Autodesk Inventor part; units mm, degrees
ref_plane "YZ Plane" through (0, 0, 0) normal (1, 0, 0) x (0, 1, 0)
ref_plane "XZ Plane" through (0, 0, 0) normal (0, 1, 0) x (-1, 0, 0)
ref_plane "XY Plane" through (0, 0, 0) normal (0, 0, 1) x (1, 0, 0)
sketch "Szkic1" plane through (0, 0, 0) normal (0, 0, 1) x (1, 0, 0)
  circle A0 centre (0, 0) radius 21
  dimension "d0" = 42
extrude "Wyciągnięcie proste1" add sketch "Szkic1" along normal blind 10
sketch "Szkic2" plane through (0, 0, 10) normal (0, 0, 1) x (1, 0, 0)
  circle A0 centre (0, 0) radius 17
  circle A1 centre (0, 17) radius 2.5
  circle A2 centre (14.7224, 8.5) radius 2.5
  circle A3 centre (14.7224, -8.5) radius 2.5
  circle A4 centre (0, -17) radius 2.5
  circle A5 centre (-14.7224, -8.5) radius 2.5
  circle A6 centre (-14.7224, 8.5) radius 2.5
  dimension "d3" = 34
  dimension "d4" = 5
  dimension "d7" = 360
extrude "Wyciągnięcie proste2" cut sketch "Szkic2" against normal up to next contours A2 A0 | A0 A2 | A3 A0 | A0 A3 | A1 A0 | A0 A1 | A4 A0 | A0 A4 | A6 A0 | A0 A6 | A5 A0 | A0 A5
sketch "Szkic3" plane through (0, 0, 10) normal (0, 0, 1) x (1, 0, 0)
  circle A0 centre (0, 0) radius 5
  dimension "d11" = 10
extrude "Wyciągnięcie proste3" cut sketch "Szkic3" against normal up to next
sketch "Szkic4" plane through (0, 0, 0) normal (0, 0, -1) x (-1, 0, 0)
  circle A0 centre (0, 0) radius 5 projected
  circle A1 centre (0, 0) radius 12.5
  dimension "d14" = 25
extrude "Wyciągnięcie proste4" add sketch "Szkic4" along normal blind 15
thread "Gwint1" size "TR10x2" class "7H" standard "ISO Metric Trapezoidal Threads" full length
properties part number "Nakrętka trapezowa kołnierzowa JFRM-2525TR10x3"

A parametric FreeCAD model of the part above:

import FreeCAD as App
import Part
import Sketcher
from FreeCAD import Vector
Q = App.Units.Quantity

doc = App.newDocument("Part")
params = doc.addObject("Spreadsheet::Sheet", "Params")
for row, (alias, value) in enumerate([
    ("sketch1_diameter", "42 mm"),
    ("pad1_length", "10 mm"),
    ("sketch2_diameter", "5 mm"),
    ("sketch3_diameter", "10 mm"),
    ("sketch4_diameter", "25 mm"),
    ("sketch4_diameter2", "10 mm"),
    ("pad2_length", "15 mm"),
], start=1):
    params.set(f"A{row}", alias)
    params.set(f"B{row}", "=" + value)
    params.setAlias(f"B{row}", alias)

body = doc.addObject("PartDesign::Body", "Body")

# Sketch on XY plane
sketch1 = body.newObject("Sketcher::SketchObject", "Sketch")
sketch1.AttachmentSupport = (doc.getObject("XY_Plane"), [""])
sketch1.MapMode = "FlatFace"
sketch1.addGeometry(Part.Circle(Vector(0, 0, 0), Vector(0, 0, 1), 21), False)
sketch1.addConstraint([
    Sketcher.Constraint("Coincident", 0, 3, -1, 1),
    Sketcher.Constraint("Diameter", 0, Q("42 mm")),
])
sketch1.setExpression("Constraints[1]", "Params.sketch1_diameter")
pad1 = body.newObject("PartDesign::Pad", "Pad")
pad1.Profile = sketch1
pad1.setExpression("Length", "Params.pad1_length")

# Sketch on XY plane
sketch2 = body.newObject("Sketcher::SketchObject", "Sketch001")
sketch2.AttachmentSupport = (doc.getObject("XY_Plane"), [""])
sketch2.MapMode = "FlatFace"
sketch2.AttachmentOffset = App.Placement(Vector(0, 0, 10), App.Rotation())
sketch2.addGeometry([
    Part.Circle(Vector(14.7, 8.5, 0), Vector(0, 0, 1), 2.5),  # 0
    Part.Circle(Vector(14.7, -8.5, 0), Vector(0, 0, 1), 2.5),  # 1
    Part.Circle(Vector(0, 17, 0), Vector(0, 0, 1), 2.5),  # 2
    Part.Circle(Vector(0, -17, 0), Vector(0, 0, 1), 2.5),  # 3
    Part.Circle(Vector(-14.7, 8.5, 0), Vector(0, 0, 1), 2.5),  # 4
    Part.Circle(Vector(-14.7, -8.5, 0), Vector(0, 0, 1), 2.5),  # 5
], False)
sketch2.addConstraint([
    Sketcher.Constraint("Equal", 0, 1),
    Sketcher.Constraint("Equal", 1, 2),
    Sketcher.Constraint("Equal", 2, 3),
    Sketcher.Constraint("Equal", 3, 4),
    Sketcher.Constraint("Equal", 4, 5),
    Sketcher.Constraint("Symmetric", 2, 3, 3, 3, -1, 1),
    Sketcher.Constraint("Symmetric", 1, 3, 4, 3, -1, 1),
    Sketcher.Constraint("Symmetric", 0, 3, 5, 3, -1, 1),
    Sketcher.Constraint("Symmetric", 0, 3, 4, 3, -2),
    Sketcher.Constraint("PointOnObject", 2, 3, -2),
    Sketcher.Constraint("Diameter", 0, Q("5 mm")),
    Sketcher.Constraint("DistanceY", 3, 3, 2, 3, Q("34 mm")),
    Sketcher.Constraint("DistanceY", 1, 3, 0, 3, Q("17 mm")),
    Sketcher.Constraint("DistanceX", -1, 1, 0, 3, Q("14.7224 mm")),
])
sketch2.setExpression("Constraints[10]", "Params.sketch2_diameter")
pocket1 = body.newObject("PartDesign::Pocket", "Pocket")
pocket1.Profile = sketch2
pocket1.Type = "UpToFirst"

# Sketch on XY plane
sketch3 = body.newObject("Sketcher::SketchObject", "Sketch002")
sketch3.AttachmentSupport = (doc.getObject("XY_Plane"), [""])
sketch3.MapMode = "FlatFace"
sketch3.AttachmentOffset = App.Placement(Vector(0, 0, 10), App.Rotation())
sketch3.addGeometry(Part.Circle(Vector(0, 0, 0), Vector(0, 0, 1), 5), False)
sketch3.addConstraint([
    Sketcher.Constraint("Coincident", 0, 3, -1, 1),
    Sketcher.Constraint("Diameter", 0, Q("10 mm")),
])
sketch3.setExpression("Constraints[1]", "Params.sketch3_diameter")
pocket2 = body.newObject("PartDesign::Pocket", "Pocket001")
pocket2.Profile = sketch3
pocket2.Type = "UpToFirst"

# Sketch on XY plane
sketch4 = body.newObject("Sketcher::SketchObject", "Sketch003")
sketch4.AttachmentSupport = (doc.getObject("XY_Plane"), [""])
sketch4.MapMode = "FlatFace"
sketch4.addGeometry([
    Part.Circle(Vector(0, 0, 0), Vector(0, 0, 1), 12),
    Part.Circle(Vector(0, 0, 0), Vector(0, 0, 1), 5),
], False)
sketch4.addConstraint([
    Sketcher.Constraint("Coincident", 0, 3, -1, 1),
    Sketcher.Constraint("Coincident", 1, 3, -1, 1),
    Sketcher.Constraint("Diameter", 0, Q("25 mm")),
    Sketcher.Constraint("Diameter", 1, Q("10 mm")),
])
sketch4.setExpression("Constraints[2]", "Params.sketch4_diameter")
sketch4.setExpression("Constraints[3]", "Params.sketch4_diameter2")
pad2 = body.newObject("PartDesign::Pad", "Pad001")
pad2.Profile = sketch4
pad2.setExpression("Length", "Params.pad2_length")
pad2.Reversed = True

doc.recompute()
